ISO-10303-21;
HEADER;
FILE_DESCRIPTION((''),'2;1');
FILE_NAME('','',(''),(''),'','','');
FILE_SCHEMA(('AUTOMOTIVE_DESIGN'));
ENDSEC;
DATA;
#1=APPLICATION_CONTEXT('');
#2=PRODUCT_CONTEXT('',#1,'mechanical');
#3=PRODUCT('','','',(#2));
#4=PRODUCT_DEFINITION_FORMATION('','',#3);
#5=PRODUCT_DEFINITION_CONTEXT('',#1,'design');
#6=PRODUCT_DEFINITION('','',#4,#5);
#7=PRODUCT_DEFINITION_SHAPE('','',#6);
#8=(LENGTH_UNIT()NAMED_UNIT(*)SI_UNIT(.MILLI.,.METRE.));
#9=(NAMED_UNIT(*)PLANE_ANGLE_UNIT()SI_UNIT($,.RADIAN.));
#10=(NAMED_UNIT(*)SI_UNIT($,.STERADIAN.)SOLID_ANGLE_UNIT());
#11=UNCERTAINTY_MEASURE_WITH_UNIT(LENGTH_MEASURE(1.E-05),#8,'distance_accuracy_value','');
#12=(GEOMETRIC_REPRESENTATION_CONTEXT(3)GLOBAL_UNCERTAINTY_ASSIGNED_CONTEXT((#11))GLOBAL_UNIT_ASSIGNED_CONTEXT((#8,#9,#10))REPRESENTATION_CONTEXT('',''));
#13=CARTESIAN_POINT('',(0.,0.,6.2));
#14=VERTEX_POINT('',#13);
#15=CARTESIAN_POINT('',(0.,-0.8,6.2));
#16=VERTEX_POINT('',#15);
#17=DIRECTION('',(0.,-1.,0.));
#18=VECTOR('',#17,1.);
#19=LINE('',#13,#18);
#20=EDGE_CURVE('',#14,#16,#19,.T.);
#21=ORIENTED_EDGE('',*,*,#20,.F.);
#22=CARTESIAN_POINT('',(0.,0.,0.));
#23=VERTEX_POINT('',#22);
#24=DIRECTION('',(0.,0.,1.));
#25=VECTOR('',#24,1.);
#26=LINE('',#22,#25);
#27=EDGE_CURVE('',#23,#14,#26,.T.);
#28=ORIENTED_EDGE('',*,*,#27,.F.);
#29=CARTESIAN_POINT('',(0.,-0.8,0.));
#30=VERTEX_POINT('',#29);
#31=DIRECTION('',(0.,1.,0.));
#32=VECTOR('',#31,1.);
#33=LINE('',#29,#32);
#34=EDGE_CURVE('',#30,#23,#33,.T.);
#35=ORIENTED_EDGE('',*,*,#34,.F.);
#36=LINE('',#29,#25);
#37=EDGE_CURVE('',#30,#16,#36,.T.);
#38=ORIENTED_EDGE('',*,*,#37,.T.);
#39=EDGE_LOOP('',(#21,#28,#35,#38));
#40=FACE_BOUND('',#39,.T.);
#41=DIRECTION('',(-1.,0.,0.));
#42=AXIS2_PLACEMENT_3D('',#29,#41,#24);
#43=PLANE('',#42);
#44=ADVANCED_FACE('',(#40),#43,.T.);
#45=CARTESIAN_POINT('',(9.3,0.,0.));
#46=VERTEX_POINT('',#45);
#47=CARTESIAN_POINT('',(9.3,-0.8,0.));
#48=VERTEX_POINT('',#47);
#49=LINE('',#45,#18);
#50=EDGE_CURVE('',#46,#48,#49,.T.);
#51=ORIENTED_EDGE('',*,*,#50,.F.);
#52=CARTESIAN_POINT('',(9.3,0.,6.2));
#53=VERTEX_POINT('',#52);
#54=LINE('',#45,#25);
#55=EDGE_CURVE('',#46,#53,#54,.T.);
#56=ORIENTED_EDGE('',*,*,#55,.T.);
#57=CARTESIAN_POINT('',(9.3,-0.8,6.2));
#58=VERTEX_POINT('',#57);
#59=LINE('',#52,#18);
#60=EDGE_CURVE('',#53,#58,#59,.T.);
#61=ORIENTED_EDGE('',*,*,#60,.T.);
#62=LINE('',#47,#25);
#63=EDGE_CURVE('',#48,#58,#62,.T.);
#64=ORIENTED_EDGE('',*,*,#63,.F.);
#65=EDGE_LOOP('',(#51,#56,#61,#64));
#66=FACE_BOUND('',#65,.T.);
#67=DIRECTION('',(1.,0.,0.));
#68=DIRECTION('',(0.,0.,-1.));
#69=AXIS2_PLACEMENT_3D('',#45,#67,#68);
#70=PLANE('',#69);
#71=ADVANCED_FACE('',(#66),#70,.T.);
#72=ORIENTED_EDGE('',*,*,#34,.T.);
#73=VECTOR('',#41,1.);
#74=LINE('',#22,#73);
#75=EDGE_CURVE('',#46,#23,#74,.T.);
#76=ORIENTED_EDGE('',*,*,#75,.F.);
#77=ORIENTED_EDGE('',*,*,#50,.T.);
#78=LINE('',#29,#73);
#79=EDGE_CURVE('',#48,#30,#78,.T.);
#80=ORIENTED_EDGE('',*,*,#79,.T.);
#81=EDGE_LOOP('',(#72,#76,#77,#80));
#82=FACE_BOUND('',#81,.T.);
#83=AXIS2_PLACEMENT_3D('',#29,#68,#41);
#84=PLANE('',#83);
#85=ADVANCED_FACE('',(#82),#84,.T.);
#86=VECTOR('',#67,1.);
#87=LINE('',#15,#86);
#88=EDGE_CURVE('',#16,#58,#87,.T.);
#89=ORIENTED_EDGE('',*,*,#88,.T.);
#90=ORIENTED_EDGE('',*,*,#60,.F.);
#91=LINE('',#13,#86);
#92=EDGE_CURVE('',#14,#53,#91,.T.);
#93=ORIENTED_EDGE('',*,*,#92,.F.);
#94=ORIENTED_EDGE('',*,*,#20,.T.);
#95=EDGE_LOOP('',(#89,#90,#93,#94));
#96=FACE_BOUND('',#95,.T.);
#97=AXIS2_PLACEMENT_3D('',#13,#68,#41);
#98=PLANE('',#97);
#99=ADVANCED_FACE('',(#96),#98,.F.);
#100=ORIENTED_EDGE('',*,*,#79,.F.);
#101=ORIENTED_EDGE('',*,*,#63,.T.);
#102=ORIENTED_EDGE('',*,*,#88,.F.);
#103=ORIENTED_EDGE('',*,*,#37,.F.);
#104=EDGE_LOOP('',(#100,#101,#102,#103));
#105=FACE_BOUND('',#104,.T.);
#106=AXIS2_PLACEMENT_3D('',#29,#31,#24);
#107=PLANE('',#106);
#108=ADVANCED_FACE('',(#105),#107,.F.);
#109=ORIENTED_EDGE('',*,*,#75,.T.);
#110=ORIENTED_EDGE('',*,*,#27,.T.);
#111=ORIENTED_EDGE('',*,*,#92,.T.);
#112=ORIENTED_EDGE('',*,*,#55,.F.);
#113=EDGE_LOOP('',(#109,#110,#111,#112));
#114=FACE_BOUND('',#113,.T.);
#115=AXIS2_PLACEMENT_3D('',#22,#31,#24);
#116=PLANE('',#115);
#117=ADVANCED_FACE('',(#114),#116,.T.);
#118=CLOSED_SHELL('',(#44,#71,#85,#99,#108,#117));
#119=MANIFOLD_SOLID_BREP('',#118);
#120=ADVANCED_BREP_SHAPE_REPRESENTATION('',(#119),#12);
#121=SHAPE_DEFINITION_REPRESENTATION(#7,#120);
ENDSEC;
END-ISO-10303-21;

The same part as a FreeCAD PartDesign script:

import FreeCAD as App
import Part
import Sketcher


def add_polygon(sketch, points):
    """Adds a closed chain of lines whose ends are joined by coincident constraints."""
    first, n = sketch.GeometryCount, len(points)
    for a, b in zip(points, points[1:] + points[:1]):
        sketch.addGeometry(Part.LineSegment(App.Vector(*a, 0), App.Vector(*b, 0)), False)
    for i in range(n):
        sketch.addConstraint(Sketcher.Constraint("Coincident", first + i, 2, first + (i + 1) % n, 1))

doc = App.newDocument("Part")
body = doc.addObject("PartDesign::Body", "Body")

sketch1 = doc.addObject("Sketcher::SketchObject", "Sketch")
body.addObject(sketch1)
sketch1.AttachmentSupport = (doc.XZ_Plane, [""])
sketch1.MapMode = "FlatFace"
add_polygon(sketch1, [(0, 0), (0, 13), (229, 13), (229, 0)])
sketch1.addConstraint([
    Sketcher.Constraint("Vertical", 0),
    Sketcher.Constraint("Horizontal", 1),
    Sketcher.Constraint("Vertical", 2),
    Sketcher.Constraint("Horizontal", 3),
    Sketcher.Constraint("Coincident", 3, 2, -1, 1),
    Sketcher.Constraint("DistanceX", 1, 1, 1, 2, 228.6),
    Sketcher.Constraint("DistanceY", 0, 1, 0, 2, 12.7),
])
pad1 = doc.addObject("PartDesign::Pad", "Pad")
body.addObject(pad1)
pad1.Profile = sketch1
pad1.Length = 0.8

sketch2 = doc.addObject("Sketcher::SketchObject", "Sketch001")
body.addObject(sketch2)
sketch2.AttachmentSupport = (doc.XZ_Plane, [""])
sketch2.MapMode = "FlatFace"
sketch2.AttachmentOffset = App.Placement(App.Vector(0, 0, 0.8), App.Rotation())
add_polygon(sketch2, [(9, 0), (229, 0), (229, 13), (0, 13), (0, 6), (9, 6)])
sketch2.addConstraint([
    Sketcher.Constraint("Horizontal", 0),
    Sketcher.Constraint("Vertical", 1),
    Sketcher.Constraint("Horizontal", 2),
    Sketcher.Constraint("Vertical", 3),
    Sketcher.Constraint("Horizontal", 4),
    Sketcher.Constraint("Vertical", 5),
    Sketcher.Constraint("PointOnObject", 0, 2, -1),
    Sketcher.Constraint("PointOnObject", 2, 2, -2),
    Sketcher.Constraint("DistanceX", 0, 1, 0, 2, 219.3),
    Sketcher.Constraint("DistanceX", 2, 2, 2, 1, 228.6),
    Sketcher.Constraint("DistanceY", 1, 1, 1, 2, 12.7),
    Sketcher.Constraint("DistanceY", 3, 2, 3, 1, 6.5),
])
pocket1 = doc.addObject("PartDesign::Pocket", "Pocket")
body.addObject(pocket1)
pocket1.Profile = sketch2
pocket1.Type = "ThroughAll"

doc.recompute()
